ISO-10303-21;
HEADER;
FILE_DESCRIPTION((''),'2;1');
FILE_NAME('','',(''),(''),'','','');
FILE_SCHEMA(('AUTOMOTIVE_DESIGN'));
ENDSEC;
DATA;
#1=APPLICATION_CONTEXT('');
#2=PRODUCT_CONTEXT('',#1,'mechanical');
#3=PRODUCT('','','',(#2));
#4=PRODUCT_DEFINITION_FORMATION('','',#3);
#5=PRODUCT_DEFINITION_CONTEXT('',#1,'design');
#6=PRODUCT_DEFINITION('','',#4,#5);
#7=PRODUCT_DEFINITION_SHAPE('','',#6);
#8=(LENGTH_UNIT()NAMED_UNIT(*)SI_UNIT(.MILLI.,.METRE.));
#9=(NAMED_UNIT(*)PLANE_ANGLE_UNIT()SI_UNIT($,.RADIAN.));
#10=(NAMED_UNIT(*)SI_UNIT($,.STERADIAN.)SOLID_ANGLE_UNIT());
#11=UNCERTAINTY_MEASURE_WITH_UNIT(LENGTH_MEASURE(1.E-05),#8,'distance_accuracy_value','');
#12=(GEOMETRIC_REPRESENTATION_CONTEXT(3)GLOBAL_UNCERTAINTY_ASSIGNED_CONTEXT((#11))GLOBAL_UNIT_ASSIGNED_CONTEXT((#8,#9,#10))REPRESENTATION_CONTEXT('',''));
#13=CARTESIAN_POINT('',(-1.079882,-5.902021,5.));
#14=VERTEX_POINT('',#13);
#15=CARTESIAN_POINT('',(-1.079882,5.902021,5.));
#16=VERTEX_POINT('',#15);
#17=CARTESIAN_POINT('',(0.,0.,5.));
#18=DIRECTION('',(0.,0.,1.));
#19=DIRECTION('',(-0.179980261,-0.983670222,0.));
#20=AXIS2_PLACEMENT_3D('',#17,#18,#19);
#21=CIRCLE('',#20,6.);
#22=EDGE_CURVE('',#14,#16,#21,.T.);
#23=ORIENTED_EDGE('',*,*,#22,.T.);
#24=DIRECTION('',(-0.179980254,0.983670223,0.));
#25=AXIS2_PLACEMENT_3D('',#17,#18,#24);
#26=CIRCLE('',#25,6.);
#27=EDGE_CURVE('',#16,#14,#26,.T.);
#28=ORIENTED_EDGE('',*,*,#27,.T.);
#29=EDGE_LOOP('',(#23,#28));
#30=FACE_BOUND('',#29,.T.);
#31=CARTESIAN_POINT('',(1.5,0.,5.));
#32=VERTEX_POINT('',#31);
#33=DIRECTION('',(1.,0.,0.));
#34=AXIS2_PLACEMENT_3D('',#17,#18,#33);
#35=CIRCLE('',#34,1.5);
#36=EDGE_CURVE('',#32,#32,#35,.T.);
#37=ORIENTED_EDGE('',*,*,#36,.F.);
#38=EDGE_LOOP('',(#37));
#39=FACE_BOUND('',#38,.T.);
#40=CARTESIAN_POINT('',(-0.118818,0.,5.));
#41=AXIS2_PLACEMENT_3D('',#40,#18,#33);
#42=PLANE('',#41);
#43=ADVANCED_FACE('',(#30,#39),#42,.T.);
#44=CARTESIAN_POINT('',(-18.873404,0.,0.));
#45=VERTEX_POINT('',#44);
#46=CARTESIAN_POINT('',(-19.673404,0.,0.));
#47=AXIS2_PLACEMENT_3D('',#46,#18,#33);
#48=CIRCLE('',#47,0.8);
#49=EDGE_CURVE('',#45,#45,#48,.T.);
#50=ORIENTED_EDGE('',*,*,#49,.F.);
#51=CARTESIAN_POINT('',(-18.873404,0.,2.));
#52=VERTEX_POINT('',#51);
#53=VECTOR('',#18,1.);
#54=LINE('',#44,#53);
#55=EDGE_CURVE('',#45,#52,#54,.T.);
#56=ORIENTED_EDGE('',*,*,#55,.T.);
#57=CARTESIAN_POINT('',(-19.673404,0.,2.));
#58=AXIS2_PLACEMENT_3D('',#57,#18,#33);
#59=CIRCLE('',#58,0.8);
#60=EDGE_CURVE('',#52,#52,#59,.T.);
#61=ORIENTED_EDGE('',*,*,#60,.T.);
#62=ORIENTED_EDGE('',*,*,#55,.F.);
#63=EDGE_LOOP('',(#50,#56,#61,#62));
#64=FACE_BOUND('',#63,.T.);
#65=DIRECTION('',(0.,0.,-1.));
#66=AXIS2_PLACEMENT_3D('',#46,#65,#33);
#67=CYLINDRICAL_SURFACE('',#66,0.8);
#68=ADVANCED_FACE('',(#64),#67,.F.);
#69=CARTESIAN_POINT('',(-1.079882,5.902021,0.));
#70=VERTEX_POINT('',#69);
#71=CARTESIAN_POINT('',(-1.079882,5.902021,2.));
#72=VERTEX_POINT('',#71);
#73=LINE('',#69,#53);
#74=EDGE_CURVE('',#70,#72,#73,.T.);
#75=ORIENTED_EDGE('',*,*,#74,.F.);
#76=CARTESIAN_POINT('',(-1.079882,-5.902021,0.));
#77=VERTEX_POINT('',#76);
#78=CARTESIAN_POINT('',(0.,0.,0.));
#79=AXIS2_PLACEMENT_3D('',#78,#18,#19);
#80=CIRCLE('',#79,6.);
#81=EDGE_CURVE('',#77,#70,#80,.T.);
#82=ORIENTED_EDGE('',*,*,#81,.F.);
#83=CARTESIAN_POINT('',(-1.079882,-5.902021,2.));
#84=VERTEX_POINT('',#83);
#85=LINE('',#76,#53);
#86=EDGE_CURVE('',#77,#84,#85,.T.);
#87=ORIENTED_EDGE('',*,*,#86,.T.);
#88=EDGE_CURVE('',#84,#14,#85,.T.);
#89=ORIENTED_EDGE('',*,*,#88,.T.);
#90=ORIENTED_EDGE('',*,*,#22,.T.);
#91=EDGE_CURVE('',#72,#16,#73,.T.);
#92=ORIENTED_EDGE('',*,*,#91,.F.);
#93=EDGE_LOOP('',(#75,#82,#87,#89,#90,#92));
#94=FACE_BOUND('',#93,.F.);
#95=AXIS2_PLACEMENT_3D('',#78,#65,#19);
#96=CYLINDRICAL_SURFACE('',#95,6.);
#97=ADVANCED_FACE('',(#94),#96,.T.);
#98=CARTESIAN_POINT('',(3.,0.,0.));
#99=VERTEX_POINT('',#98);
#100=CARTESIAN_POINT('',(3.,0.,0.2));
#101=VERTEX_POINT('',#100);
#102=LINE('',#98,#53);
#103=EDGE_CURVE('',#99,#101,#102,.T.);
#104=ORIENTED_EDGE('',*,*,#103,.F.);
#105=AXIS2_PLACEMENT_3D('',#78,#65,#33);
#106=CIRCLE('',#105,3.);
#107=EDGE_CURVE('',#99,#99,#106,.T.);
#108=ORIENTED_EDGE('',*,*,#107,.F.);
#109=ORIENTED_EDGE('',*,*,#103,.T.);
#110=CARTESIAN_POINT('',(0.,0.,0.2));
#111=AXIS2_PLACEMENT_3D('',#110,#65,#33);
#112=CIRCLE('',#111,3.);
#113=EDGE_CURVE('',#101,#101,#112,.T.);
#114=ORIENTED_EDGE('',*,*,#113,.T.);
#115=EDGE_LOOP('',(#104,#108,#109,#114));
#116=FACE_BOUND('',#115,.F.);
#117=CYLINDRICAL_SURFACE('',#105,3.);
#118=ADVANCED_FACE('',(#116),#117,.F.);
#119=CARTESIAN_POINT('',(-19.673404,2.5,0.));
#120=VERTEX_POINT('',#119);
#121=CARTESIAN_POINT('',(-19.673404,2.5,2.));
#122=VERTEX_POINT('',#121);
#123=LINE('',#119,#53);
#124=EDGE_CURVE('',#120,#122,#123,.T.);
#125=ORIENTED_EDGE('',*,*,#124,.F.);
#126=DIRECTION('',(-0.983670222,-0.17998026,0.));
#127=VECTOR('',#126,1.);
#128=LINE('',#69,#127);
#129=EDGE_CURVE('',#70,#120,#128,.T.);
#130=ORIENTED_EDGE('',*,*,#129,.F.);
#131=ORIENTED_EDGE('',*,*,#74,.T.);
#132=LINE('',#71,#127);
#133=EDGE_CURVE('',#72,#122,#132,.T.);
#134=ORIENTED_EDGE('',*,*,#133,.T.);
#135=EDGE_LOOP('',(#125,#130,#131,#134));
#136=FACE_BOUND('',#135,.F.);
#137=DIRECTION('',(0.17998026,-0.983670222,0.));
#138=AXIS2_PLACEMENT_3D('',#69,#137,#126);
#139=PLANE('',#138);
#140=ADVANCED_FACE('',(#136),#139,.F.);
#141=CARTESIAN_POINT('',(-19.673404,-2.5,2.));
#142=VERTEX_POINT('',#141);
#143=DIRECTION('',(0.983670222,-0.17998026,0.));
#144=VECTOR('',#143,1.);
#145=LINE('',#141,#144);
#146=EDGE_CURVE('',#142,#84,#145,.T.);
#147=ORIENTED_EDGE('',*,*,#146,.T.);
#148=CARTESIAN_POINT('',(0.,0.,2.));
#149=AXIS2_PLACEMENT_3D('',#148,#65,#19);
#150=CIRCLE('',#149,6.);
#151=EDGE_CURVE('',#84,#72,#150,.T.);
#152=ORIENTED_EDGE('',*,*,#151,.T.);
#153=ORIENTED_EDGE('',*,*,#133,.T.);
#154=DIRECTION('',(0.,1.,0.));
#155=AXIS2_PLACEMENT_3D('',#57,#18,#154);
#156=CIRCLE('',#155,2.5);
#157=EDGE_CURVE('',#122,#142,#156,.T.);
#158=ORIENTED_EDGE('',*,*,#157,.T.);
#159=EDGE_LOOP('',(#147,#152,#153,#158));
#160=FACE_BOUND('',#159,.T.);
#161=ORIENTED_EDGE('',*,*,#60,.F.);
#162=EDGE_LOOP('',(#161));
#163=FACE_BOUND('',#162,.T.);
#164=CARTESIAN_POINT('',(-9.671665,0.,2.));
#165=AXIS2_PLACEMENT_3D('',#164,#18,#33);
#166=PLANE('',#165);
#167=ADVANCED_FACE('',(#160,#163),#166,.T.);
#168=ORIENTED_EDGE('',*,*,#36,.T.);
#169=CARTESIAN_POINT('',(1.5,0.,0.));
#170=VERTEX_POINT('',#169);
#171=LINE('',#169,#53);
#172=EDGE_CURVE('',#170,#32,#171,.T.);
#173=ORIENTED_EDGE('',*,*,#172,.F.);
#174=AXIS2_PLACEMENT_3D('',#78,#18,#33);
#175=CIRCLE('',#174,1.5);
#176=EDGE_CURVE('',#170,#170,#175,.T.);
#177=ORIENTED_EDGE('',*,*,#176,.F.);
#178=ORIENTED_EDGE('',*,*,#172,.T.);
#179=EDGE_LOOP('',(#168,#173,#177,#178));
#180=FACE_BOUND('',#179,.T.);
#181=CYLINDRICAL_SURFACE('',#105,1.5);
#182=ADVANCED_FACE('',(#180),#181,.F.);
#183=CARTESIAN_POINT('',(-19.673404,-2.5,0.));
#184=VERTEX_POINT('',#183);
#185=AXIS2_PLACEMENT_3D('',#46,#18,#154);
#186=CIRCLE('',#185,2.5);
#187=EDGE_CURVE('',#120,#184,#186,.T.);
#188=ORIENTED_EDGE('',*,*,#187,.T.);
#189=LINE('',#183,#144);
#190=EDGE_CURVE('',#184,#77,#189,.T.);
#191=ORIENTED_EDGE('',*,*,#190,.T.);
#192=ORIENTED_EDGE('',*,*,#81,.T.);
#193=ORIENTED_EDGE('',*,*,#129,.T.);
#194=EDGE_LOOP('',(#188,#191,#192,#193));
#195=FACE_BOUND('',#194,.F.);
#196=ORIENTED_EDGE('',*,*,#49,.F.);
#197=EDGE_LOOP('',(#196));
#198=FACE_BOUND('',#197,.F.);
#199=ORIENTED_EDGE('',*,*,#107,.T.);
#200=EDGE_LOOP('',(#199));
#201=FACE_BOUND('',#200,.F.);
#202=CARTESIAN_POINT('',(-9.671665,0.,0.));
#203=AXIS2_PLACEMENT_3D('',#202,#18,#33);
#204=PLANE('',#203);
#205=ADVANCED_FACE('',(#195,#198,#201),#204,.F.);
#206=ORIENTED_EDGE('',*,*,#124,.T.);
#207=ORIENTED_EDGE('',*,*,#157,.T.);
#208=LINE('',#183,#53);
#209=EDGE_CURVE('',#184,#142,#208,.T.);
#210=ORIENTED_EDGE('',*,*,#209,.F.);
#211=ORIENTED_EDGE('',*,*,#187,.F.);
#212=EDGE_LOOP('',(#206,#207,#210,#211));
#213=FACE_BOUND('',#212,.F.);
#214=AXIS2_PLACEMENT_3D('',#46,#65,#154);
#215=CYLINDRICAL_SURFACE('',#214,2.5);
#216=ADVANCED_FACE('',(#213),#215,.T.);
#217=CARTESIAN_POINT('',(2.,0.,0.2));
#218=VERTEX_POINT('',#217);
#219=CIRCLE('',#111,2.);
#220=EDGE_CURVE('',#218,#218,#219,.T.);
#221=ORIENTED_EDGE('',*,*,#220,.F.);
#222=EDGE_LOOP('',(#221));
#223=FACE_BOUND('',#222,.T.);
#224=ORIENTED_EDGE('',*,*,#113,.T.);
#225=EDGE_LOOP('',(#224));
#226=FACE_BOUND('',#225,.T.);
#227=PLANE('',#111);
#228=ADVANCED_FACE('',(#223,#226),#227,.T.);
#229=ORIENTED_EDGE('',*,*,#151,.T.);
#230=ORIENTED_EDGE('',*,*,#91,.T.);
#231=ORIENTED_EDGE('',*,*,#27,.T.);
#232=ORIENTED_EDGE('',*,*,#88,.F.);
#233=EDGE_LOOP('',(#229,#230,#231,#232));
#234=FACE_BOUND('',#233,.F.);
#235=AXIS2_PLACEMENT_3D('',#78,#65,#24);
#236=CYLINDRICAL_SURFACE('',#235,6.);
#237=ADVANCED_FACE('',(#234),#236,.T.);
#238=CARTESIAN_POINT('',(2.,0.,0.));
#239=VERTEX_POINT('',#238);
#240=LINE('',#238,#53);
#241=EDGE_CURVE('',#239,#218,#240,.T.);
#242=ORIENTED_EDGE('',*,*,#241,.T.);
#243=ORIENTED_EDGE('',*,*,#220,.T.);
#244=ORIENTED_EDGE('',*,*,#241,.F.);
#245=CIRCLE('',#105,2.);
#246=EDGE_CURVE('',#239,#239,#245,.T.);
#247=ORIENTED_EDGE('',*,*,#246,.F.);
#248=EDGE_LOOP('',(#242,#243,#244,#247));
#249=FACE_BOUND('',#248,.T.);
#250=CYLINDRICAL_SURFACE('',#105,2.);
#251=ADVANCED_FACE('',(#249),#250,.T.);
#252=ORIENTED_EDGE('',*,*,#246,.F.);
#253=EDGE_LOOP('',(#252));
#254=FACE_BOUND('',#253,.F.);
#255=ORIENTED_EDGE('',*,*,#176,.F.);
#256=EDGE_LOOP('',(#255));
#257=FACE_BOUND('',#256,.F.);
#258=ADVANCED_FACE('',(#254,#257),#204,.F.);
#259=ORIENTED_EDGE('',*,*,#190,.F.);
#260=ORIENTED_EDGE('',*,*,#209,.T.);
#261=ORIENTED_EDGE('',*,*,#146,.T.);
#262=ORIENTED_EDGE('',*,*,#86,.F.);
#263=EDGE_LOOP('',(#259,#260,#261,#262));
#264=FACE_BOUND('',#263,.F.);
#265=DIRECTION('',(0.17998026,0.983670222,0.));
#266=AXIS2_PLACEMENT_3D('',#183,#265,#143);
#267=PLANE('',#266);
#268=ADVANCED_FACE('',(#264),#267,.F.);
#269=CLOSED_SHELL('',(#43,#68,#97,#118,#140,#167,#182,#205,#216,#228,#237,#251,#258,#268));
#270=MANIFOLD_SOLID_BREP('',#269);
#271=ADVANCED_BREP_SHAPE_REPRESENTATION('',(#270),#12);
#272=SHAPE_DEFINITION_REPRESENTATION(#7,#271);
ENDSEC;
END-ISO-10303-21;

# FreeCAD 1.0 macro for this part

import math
import FreeCAD as App
import Part
import Sketcher
from FreeCAD import Vector
Q = App.Units.Quantity

doc = App.newDocument("Part")
body = doc.addObject("PartDesign::Body", "Body")

# Sketch on XY plane
sketch1 = body.newObject("Sketcher::SketchObject", "Sketch")
sketch1.AttachmentSupport = (doc.getObject("XY_Plane"), [""])
sketch1.MapMode = "FlatFace"
sketch1.addGeometry([
    Part.ArcOfCircle(Part.Circle(Vector(0, 0, 0), Vector(0, 0, 1), 6), math.radians(-100), math.radians(100)),
    Part.ArcOfCircle(Part.Circle(Vector(0, 0, 0), Vector(0, 0, 1), 6), math.radians(100), math.radians(260)),
    Part.Circle(Vector(0, 0, 0), Vector(0, 0, 1), 1.5),
], False)
sketch1.addConstraint([
    Sketcher.Constraint("Tangent", 0, 1, 1, 2),
    Sketcher.Constraint("Coincident", 1, 1, 0, 2),
    Sketcher.Constraint("Coincident", 0, 3, -1, 1),
    Sketcher.Constraint("Coincident", 2, 3, -1, 1),
    Sketcher.Constraint("Vertical", 0, 1, 1, 1),
    Sketcher.Constraint("Diameter", 2, Q("3 mm")),
    Sketcher.Constraint("Radius", 0, Q("6 mm")),
    Sketcher.Constraint("DistanceX", 0, 1, -1, 1, Q("1.079882 mm")),
])
pad1 = body.newObject("PartDesign::Pad", "Pad")
pad1.Profile = sketch1
pad1.Length = 5

# Sketch on XY plane
sketch2 = body.newObject("Sketcher::SketchObject", "Sketch001")
sketch2.AttachmentSupport = (doc.getObject("XY_Plane"), [""])
sketch2.MapMode = "FlatFace"
sketch2.addGeometry([
    Part.ArcOfCircle(Part.Circle(Vector(0, 0, 0), Vector(0, 0, 1), 6), math.radians(100), math.radians(260)),  # 0
    Part.LineSegment(Vector(-1.1, 5.9, 0), Vector(-19.7, 2.5, 0)),  # 1
    Part.ArcOfCircle(Part.Circle(Vector(-19.7, 0, 0), Vector(0, 0, 1), 2.5), math.radians(90), math.radians(270)),  # 2
    Part.LineSegment(Vector(-19.7, -2.5, 0), Vector(-1.1, -5.9, 0)),  # 3
    Part.Circle(Vector(-19.7, 0, 0), Vector(0, 0, 1), 0.8),  # 4
], False)
sketch2.addConstraint([
    Sketcher.Constraint("Tangent", 0, 1, 1, 1),
    Sketcher.Constraint("Coincident", 1, 2, 2, 1),
    Sketcher.Constraint("Coincident", 2, 2, 3, 1),
    Sketcher.Constraint("Tangent", 3, 2, 0, 2),
    Sketcher.Constraint("Coincident", 0, 3, -1, 1),
    Sketcher.Constraint("Coincident", 4, 3, 2, 3),
    Sketcher.Constraint("Symmetric", 1, 2, 2, 2, -1),
    Sketcher.Constraint("Vertical", 4, 3, 1, 2),
    Sketcher.Constraint("Radius", 0, Q("6 mm")),
    Sketcher.Constraint("Diameter", 4, Q("1.6 mm")),
    Sketcher.Constraint("Radius", 2, Q("2.5 mm")),
    Sketcher.Constraint("Distance", 1, Q("18.902192 mm")),
])
pad2 = body.newObject("PartDesign::Pad", "Pad001")
pad2.Profile = sketch2
pad2.Length = 2

# Sketch on XY plane
sketch3 = body.newObject("Sketcher::SketchObject", "Sketch002")
sketch3.AttachmentSupport = (doc.getObject("XY_Plane"), [""])
sketch3.MapMode = "FlatFace"
sketch3.addGeometry([
    Part.Circle(Vector(0, 0, 0), Vector(0, 0, 1), 3),
    Part.Circle(Vector(0, 0, 0), Vector(0, 0, 1), 2),
], False)
sketch3.addConstraint([
    Sketcher.Constraint("Coincident", 0, 3, -1, 1),
    Sketcher.Constraint("Coincident", 1, 3, -1, 1),
    Sketcher.Constraint("Diameter", 0, Q("6 mm")),
    Sketcher.Constraint("Diameter", 1, Q("4 mm")),
])
pocket1 = body.newObject("PartDesign::Pocket", "Pocket")
pocket1.Profile = sketch3
pocket1.Length = 0.2
pocket1.Reversed = True

doc.recompute()
